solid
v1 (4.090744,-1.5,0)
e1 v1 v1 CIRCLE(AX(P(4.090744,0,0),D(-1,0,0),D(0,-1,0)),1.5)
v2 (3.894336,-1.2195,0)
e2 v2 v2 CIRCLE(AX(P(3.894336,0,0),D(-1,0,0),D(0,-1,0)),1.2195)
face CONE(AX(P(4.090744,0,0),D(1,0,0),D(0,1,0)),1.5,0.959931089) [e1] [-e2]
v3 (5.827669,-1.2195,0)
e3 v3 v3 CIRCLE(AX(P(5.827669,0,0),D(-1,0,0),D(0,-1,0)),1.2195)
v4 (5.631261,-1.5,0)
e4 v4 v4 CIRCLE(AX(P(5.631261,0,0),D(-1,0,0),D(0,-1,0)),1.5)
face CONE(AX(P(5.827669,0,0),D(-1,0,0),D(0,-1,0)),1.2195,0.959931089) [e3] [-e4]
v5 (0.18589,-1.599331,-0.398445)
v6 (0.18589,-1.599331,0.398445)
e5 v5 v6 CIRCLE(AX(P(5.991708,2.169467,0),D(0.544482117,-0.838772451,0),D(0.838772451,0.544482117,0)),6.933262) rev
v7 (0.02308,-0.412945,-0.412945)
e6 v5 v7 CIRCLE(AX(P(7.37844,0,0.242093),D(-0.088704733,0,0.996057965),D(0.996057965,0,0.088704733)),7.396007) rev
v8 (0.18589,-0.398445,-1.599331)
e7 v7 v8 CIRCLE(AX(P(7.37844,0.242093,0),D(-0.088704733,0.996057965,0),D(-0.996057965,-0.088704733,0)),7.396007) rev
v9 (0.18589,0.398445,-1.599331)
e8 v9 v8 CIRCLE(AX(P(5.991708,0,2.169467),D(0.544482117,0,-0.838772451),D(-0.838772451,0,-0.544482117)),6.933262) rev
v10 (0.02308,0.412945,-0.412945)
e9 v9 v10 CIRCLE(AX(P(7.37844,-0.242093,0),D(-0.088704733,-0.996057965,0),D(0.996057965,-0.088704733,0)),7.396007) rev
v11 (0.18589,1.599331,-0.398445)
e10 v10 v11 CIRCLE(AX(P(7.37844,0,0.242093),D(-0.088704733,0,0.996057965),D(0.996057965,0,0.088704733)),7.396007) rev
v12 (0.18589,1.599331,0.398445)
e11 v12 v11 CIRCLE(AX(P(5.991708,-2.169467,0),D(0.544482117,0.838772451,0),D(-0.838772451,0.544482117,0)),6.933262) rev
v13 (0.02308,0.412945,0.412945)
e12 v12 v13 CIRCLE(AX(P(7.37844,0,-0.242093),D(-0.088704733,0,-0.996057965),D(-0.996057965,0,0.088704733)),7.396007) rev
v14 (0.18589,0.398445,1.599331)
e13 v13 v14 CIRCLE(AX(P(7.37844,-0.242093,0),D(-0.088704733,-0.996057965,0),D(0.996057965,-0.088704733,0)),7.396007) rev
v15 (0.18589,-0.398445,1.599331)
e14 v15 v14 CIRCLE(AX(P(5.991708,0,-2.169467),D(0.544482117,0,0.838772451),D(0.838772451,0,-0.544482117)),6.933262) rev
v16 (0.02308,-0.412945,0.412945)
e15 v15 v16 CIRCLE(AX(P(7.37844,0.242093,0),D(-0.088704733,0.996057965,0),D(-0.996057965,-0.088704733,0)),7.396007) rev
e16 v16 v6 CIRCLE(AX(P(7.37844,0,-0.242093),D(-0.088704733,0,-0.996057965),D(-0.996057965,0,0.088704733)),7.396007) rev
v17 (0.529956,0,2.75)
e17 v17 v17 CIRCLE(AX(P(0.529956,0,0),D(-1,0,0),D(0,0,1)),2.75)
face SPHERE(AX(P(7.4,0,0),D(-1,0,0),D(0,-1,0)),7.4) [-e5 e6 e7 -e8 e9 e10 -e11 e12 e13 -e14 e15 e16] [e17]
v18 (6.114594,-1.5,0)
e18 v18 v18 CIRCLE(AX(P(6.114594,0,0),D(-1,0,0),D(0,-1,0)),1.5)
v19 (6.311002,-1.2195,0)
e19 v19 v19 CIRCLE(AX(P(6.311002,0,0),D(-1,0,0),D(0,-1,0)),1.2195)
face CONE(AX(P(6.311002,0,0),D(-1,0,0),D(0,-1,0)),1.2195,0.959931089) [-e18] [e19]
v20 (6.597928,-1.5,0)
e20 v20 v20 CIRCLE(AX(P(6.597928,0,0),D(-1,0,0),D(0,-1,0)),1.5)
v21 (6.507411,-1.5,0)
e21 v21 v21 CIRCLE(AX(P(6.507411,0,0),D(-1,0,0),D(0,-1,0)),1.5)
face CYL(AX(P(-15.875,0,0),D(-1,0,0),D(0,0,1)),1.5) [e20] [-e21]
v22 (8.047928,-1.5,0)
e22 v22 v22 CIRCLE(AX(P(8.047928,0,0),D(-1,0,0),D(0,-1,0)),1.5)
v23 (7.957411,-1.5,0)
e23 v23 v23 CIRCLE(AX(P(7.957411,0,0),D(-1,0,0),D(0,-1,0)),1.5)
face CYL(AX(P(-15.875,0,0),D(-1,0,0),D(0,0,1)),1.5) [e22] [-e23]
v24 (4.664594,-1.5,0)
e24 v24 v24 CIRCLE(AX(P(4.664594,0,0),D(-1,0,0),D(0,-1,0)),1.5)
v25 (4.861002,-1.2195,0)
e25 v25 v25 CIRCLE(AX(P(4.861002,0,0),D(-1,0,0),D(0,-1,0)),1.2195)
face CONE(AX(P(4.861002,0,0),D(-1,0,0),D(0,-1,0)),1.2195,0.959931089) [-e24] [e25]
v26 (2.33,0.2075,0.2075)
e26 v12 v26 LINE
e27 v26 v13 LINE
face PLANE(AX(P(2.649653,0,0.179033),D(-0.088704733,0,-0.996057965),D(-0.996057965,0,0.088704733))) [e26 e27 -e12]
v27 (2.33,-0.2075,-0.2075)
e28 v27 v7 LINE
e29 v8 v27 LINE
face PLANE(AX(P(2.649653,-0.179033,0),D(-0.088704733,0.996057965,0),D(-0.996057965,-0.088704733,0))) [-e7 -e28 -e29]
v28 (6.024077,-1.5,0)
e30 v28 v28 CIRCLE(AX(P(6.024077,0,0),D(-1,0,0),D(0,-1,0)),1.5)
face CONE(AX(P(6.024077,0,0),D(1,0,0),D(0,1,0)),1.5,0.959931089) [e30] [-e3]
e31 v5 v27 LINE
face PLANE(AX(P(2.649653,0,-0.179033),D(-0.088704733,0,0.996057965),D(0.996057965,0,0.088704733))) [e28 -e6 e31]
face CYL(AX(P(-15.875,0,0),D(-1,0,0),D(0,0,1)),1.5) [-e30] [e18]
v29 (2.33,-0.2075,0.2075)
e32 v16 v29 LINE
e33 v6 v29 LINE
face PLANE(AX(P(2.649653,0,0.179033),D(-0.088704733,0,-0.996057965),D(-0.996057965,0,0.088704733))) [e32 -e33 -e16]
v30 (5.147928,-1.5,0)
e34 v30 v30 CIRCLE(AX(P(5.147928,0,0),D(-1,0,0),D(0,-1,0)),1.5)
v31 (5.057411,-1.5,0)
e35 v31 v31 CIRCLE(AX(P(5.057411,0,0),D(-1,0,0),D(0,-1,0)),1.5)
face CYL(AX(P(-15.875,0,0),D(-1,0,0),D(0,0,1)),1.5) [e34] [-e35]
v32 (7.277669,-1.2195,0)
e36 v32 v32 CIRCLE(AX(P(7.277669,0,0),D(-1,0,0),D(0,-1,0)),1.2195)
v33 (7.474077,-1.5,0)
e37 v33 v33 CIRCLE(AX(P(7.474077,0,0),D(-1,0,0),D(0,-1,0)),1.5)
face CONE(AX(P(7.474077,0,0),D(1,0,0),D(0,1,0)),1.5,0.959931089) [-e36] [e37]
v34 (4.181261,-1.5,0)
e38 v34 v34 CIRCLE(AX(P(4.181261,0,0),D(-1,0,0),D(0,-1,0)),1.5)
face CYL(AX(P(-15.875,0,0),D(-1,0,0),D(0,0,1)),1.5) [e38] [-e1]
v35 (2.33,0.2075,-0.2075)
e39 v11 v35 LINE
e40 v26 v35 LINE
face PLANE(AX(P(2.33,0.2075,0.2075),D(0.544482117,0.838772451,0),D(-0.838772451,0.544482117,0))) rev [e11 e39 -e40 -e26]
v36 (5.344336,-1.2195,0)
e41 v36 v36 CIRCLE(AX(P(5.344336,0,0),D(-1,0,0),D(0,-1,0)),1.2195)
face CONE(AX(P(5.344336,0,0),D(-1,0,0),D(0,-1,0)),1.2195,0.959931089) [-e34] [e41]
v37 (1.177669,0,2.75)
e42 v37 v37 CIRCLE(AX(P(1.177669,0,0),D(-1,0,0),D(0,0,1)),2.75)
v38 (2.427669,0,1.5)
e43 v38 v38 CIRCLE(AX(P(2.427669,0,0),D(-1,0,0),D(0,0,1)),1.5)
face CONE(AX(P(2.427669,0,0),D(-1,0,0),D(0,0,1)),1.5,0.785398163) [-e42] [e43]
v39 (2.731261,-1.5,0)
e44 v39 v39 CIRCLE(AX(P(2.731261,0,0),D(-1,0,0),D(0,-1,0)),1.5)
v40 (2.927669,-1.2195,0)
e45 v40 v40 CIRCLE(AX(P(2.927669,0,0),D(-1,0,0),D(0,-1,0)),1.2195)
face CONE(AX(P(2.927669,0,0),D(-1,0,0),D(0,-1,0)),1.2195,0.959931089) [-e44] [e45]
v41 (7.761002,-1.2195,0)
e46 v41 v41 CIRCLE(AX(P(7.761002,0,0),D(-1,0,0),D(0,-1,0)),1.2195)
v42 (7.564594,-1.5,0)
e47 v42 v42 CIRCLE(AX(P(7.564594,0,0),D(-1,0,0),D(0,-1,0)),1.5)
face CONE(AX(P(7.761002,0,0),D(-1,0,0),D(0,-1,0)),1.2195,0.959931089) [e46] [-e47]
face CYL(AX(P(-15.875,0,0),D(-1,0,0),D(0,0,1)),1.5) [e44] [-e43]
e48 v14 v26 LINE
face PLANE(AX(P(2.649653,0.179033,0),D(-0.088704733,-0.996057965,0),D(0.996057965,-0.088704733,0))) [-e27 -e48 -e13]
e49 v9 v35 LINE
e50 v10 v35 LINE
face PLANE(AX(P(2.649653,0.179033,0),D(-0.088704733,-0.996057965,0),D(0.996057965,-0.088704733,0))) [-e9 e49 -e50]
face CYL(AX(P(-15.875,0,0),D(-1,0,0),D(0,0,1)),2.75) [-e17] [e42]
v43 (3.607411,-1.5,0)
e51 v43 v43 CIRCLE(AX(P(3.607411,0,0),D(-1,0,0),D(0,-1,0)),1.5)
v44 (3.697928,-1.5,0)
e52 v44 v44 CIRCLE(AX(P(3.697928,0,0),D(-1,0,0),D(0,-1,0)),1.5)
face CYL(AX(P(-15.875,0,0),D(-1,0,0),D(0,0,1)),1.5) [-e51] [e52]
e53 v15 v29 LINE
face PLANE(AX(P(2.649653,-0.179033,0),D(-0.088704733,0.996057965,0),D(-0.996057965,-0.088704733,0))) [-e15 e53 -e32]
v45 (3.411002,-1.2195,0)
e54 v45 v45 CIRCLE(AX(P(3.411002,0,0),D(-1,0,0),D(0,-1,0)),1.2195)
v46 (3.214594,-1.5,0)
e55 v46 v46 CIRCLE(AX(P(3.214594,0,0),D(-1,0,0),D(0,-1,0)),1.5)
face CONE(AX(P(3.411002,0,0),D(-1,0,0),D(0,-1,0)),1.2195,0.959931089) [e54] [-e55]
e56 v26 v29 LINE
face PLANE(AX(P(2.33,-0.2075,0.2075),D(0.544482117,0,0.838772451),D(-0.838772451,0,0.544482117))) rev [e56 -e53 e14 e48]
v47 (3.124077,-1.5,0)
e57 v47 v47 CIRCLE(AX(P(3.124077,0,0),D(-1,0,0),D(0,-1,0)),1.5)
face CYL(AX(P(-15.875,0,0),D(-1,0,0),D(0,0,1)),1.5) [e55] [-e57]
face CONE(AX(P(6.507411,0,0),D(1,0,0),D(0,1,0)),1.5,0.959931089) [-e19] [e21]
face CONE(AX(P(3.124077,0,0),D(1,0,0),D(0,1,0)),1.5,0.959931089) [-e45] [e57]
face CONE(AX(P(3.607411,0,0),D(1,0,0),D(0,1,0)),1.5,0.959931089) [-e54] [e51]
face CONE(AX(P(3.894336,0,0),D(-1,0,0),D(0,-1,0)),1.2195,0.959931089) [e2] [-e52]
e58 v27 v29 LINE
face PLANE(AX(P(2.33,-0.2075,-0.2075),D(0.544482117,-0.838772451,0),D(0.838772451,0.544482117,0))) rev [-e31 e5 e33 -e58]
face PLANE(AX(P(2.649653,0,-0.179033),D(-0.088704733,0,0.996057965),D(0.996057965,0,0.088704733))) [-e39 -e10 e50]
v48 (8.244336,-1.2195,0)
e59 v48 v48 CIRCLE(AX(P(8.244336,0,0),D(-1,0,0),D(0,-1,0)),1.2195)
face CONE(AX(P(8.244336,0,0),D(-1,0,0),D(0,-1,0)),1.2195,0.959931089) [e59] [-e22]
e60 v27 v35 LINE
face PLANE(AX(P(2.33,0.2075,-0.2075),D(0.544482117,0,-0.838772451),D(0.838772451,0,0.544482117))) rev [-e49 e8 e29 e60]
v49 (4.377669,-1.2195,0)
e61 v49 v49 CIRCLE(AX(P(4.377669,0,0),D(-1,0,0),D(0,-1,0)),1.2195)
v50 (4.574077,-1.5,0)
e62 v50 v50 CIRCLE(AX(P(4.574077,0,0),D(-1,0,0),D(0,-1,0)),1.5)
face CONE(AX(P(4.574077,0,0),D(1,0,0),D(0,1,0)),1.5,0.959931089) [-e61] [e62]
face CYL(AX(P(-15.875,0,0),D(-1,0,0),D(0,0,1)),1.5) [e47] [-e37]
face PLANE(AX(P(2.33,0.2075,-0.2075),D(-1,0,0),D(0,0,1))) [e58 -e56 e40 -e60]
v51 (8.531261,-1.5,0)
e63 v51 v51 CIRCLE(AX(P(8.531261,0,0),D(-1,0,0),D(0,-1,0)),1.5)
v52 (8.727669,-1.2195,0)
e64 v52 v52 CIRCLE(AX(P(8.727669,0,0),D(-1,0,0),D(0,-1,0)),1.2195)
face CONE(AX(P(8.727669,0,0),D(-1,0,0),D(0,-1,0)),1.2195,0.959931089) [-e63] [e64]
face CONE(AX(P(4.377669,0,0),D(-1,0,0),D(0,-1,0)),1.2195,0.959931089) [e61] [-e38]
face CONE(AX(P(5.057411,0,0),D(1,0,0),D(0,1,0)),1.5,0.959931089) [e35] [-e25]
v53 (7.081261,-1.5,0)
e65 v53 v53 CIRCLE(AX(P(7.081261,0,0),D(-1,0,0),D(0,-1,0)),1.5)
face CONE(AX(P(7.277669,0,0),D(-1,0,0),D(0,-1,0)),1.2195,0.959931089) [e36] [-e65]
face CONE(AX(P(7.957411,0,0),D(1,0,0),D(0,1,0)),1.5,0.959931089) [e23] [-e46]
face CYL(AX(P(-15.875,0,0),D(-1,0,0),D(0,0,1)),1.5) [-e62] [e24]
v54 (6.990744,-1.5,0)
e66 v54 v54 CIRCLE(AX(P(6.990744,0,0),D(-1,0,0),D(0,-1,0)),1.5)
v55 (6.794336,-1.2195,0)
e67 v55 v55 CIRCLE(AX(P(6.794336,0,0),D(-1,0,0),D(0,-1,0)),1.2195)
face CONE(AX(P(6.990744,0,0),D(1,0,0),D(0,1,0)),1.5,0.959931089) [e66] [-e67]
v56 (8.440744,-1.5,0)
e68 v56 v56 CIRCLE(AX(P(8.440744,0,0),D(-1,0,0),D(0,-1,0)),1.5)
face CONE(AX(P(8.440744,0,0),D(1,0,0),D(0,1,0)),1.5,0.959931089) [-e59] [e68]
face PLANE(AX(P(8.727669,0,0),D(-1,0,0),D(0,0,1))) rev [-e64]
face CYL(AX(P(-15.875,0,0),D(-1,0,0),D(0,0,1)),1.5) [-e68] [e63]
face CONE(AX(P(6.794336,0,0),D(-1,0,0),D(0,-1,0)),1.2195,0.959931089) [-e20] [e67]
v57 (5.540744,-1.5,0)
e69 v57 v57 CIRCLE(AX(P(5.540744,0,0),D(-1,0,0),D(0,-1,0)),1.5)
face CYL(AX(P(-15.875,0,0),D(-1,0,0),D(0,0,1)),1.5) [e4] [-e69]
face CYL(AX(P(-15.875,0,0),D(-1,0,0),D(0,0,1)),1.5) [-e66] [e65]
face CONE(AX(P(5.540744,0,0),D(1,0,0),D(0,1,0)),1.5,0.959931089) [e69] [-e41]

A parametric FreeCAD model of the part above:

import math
import FreeCAD as App
import Part
import Sketcher
Q = App.Units.Quantity

doc = App.newDocument("Part")
body = doc.addObject("PartDesign::Body", "Body")

# Sketch on XY plane
sketch1 = doc.addObject("Sketcher::SketchObject", "Sketch")
body.addObject(sketch1)
sketch1.AttachmentSupport = (doc.XY_Plane, [""])
sketch1.MapMode = "FlatFace"
sketch1.addGeometry([
    Part.LineSegment(App.Vector(0, 0, 0), App.Vector(8.7, 0, 0)),  # 0
    Part.LineSegment(App.Vector(8.7, 0, 0), App.Vector(8.7, 1.5, 0)),  # 1
    Part.LineSegment(App.Vector(8.7, 1.5, 0), App.Vector(2.4, 1.5, 0)),  # 2
    Part.LineSegment(App.Vector(2.4, 1.5, 0), App.Vector(1.2, 2.8, 0)),  # 3
    Part.LineSegment(App.Vector(1.2, 2.8, 0), App.Vector(0.5, 2.8, 0)),  # 4
    Part.ArcOfCircle(Part.Circle(App.Vector(7.4, 0, 0), App.Vector(0, 0, 1), 7.4), math.radians(158), math.radians(180)),  # 5
], False)
sketch1.addConstraint([
    Sketcher.Constraint("Coincident", 0, 2, 1, 1),
    Sketcher.Constraint("Coincident", 1, 2, 2, 1),
    Sketcher.Constraint("Coincident", 2, 2, 3, 1),
    Sketcher.Constraint("Coincident", 3, 2, 4, 1),
    Sketcher.Constraint("Coincident", 4, 2, 5, 1),
    Sketcher.Constraint("Coincident", 5, 2, 0, 1),
    Sketcher.Constraint("Horizontal", 0),
    Sketcher.Constraint("Vertical", 1),
    Sketcher.Constraint("Horizontal", 2),
    Sketcher.Constraint("Horizontal", 4),
    Sketcher.Constraint("Coincident", 5, 2, -1, 1),
    Sketcher.Constraint("PointOnObject", 5, 3, -1),
    Sketcher.Constraint("Radius", 5, Q("7.4 mm")),
    Sketcher.Constraint("Angle", 3, Q("135 deg")),
    Sketcher.Constraint("DistanceX", 2, 2, 2, 1, Q("6.3 mm")),
    Sketcher.Constraint("DistanceY", 1, 1, 1, 2, Q("1.5 mm")),
    Sketcher.Constraint("DistanceY", -1, 1, 3, 2, Q("2.75 mm")),
    Sketcher.Constraint("DistanceX", 0, 1, 0, 2, Q("8.727669 mm")),
])
revolution = doc.addObject("PartDesign::Revolution", "Revolution")
body.addObject(revolution)
revolution.Profile = sketch1
revolution.ReferenceAxis = (sketch1, ["H_Axis"])
revolution.Angle = 360

# Sketch on YZ plane
sketch2 = doc.addObject("Sketcher::SketchObject", "Sketch001")
body.addObject(sketch2)
sketch2.AttachmentSupport = (doc.YZ_Plane, [""])
sketch2.MapMode = "FlatFace"
sketch2.addGeometry([
    Part.LineSegment(App.Vector(-1.7, 0.4, 0), App.Vector(-1.7, -0.4, 0)),
    Part.LineSegment(App.Vector(-1.7, -0.4, 0), App.Vector(1.7, -0.4, 0)),
    Part.LineSegment(App.Vector(1.7, -0.4, 0), App.Vector(1.7, 0.4, 0)),
    Part.LineSegment(App.Vector(1.7, 0.4, 0), App.Vector(-1.7, 0.4, 0)),
], False)
sketch2.addConstraint([
    Sketcher.Constraint("Coincident", 0, 2, 1, 1),
    Sketcher.Constraint("Coincident", 1, 2, 2, 1),
    Sketcher.Constraint("Coincident", 2, 2, 3, 1),
    Sketcher.Constraint("Coincident", 3, 2, 0, 1),
    Sketcher.Constraint("Vertical", 0),
    Sketcher.Constraint("Horizontal", 1),
    Sketcher.Constraint("Vertical", 2),
    Sketcher.Constraint("Horizontal", 3),
    Sketcher.Constraint("Symmetric", 0, 2, 2, 2, -1, 1),
    Sketcher.Constraint("DistanceX", 1, 1, 1, 2, Q("3.44 mm")),
    Sketcher.Constraint("DistanceY", 0, 2, 0, 1, Q("0.83 mm")),
])

# Sketch on YZ plane
sketch3 = doc.addObject("Sketcher::SketchObject", "Sketch002")
body.addObject(sketch3)
sketch3.AttachmentSupport = (doc.YZ_Plane, [""])
sketch3.MapMode = "FlatFace"
sketch3.AttachmentOffset = App.Placement(App.Vector(0, 0, 2.33), App.Rotation())
sketch3.addGeometry([
    Part.LineSegment(App.Vector(-0.21, 0.21, 0), App.Vector(-0.21, -0.21, 0)),
    Part.LineSegment(App.Vector(-0.21, -0.21, 0), App.Vector(0.21, -0.21, 0)),
    Part.LineSegment(App.Vector(0.21, -0.21, 0), App.Vector(0.21, 0.21, 0)),
    Part.LineSegment(App.Vector(0.21, 0.21, 0), App.Vector(-0.21, 0.21, 0)),
], False)
sketch3.addConstraint([
    Sketcher.Constraint("Coincident", 0, 2, 1, 1),
    Sketcher.Constraint("Coincident", 1, 2, 2, 1),
    Sketcher.Constraint("Coincident", 2, 2, 3, 1),
    Sketcher.Constraint("Coincident", 3, 2, 0, 1),
    Sketcher.Constraint("Vertical", 0),
    Sketcher.Constraint("Horizontal", 1),
    Sketcher.Constraint("Vertical", 2),
    Sketcher.Constraint("Horizontal", 3),
    Sketcher.Constraint("Symmetric", 0, 2, 2, 2, -1, 1),
    Sketcher.Constraint("Equal", 3, 0),
    Sketcher.Constraint("DistanceX", 1, 1, 1, 2, Q("0.415 mm")),
])

subtractiveloft = doc.addObject("PartDesign::SubtractiveLoft", "SubtractiveLoft")
body.addObject(subtractiveloft)
subtractiveloft.Profile = sketch2
subtractiveloft.Sections = [sketch3]
doc.recompute()

polarpattern = doc.addObject("PartDesign::PolarPattern", "PolarPattern")
body.addObject(polarpattern)
polarpattern.Originals = [subtractiveloft]
polarpattern.Axis = (doc.X_Axis, [""])
polarpattern.Angle = 90
polarpattern.Occurrences = 2
body.Tip = polarpattern

# Sketch on XY plane
sketch4 = doc.addObject("Sketcher::SketchObject", "Sketch003")
body.addObject(sketch4)
sketch4.AttachmentSupport = (doc.XY_Plane, [""])
sketch4.MapMode = "FlatFace"
sketch4.addGeometry([
    Part.LineSegment(App.Vector(2.93, -1.22, 0), App.Vector(2.73, -1.5, 0)),  # 0
    Part.LineSegment(App.Vector(2.73, -1.5, 0), App.Vector(2.73, -1.88, 0)),  # 1
    Part.LineSegment(App.Vector(2.73, -1.88, 0), App.Vector(3.12, -1.88, 0)),  # 2
    Part.LineSegment(App.Vector(3.12, -1.88, 0), App.Vector(3.12, -1.5, 0)),  # 3
    Part.LineSegment(App.Vector(3.12, -1.5, 0), App.Vector(2.93, -1.22, 0)),  # 4
], False)
sketch4.addConstraint([
    Sketcher.Constraint("Coincident", 0, 2, 1, 1),
    Sketcher.Constraint("Coincident", 1, 2, 2, 1),
    Sketcher.Constraint("Coincident", 2, 2, 3, 1),
    Sketcher.Constraint("Coincident", 3, 2, 4, 1),
    Sketcher.Constraint("Coincident", 4, 2, 0, 1),
    Sketcher.Constraint("Vertical", 1),
    Sketcher.Constraint("Horizontal", 2),
    Sketcher.Constraint("Vertical", 3),
    Sketcher.Constraint("Horizontal", 0, 2, 3, 2),
    Sketcher.Constraint("Equal", 0, 4),
    Sketcher.Constraint("Angle", 0, Q("-125 deg")),
    Sketcher.Constraint("DistanceY", 0, 2, -1, 1, Q("1.5 mm")),
    Sketcher.Constraint("DistanceY", 1, 2, 1, 1, Q("0.375 mm")),
    Sketcher.Constraint("DistanceY", 4, 2, -1, 1, Q("1.2195 mm")),
    Sketcher.Constraint("DistanceX", -1, 1, 0, 2, Q("2.731261 mm")),
])
groove = doc.addObject("PartDesign::Groove", "Groove")
body.addObject(groove)
groove.Profile = sketch4
groove.ReferenceAxis = (sketch4, ["H_Axis"])
groove.Angle = 360
doc.recompute()

linearpattern = doc.addObject("PartDesign::LinearPattern", "LinearPattern")
body.addObject(linearpattern)
linearpattern.Originals = [groove]
linearpattern.Direction = (doc.X_Axis, [""])
linearpattern.Mode = "offset"
linearpattern.Offset = 0.483333
linearpattern.Occurrences = 13
body.Tip = linearpattern

doc.recompute()
